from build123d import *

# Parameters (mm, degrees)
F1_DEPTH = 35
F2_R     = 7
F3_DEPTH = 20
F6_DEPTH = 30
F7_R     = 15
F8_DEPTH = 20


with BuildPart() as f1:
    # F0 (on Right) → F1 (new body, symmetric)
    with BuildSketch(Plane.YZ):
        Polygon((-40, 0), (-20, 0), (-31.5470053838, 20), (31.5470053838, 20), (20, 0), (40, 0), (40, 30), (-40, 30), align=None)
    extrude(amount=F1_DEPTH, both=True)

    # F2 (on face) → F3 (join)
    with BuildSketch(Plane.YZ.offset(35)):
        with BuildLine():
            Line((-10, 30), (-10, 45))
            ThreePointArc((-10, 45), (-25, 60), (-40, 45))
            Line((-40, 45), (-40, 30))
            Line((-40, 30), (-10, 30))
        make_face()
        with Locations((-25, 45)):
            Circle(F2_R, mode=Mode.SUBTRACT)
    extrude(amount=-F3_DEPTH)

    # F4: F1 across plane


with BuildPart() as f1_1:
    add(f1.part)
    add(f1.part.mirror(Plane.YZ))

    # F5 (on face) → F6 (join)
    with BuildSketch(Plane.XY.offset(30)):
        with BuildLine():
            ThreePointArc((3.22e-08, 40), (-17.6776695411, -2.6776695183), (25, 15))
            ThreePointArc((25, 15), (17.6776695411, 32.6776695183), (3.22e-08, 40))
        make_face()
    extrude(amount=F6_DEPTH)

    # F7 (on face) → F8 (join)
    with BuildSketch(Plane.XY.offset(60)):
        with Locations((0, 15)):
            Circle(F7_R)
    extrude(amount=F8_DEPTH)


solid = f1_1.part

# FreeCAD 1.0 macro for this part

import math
import FreeCAD as App
import Part
import Sketcher
Q = App.Units.Quantity


def add_polygon(sketch, points):
    """Adds a closed chain of lines whose ends are joined by coincident constraints."""
    first, n = sketch.GeometryCount, len(points)
    for a, b in zip(points, points[1:] + points[:1]):
        sketch.addGeometry(Part.LineSegment(App.Vector(*a, 0), App.Vector(*b, 0)), False)
    for i in range(n):
        sketch.addConstraint(Sketcher.Constraint("Coincident", first + i, 2, first + (i + 1) % n, 1))

doc = App.newDocument("Part")
body = doc.addObject("PartDesign::Body", "Body")

sketch1 = body.newObject("Sketcher::SketchObject", "Sketch")
sketch1.AttachmentSupport = (doc.getObject("YZ_Plane"), [""])
sketch1.MapMode = "FlatFace"
add_polygon(sketch1, [(-40, 0), (-20, 0), (-32, 20), (32, 20), (20, 0), (40, 0), (40, 30), (-40, 30)])
sketch1.addConstraint(Sketcher.Constraint("Horizontal", 0))
sketch1.addConstraint(Sketcher.Constraint("Horizontal", 2))
sketch1.addConstraint(Sketcher.Constraint("Horizontal", 4))
sketch1.addConstraint(Sketcher.Constraint("Vertical", 5))
sketch1.addConstraint(Sketcher.Constraint("Horizontal", 6))
sketch1.addConstraint(Sketcher.Constraint("Vertical", 7))
sketch1.addConstraint(Sketcher.Constraint("Symmetric", 0, 2, 3, 2, -1, 1))
sketch1.addConstraint(Sketcher.Constraint("Symmetric", 4, 2, 7, 2, -2))
sketch1.addConstraint(Sketcher.Constraint("Equal", 1, 3))
sketch1.addConstraint(Sketcher.Constraint("DistanceX", 0, 1, 0, 2, 20.0))
sketch1.addConstraint(Sketcher.Constraint("DistanceX", 6, 2, 6, 1, 80.0))
sketch1.addConstraint(Sketcher.Constraint("DistanceY", 5, 1, 5, 2, 30.0))
sketch1.addConstraint(Sketcher.Constraint("Angle", 1, Q("120 deg")))
sketch1.addConstraint(Sketcher.Constraint("DistanceY", -1, 1, 1, 2, 20.0))
pad1 = body.newObject("PartDesign::Pad", "Pad")
pad1.Profile = sketch1
pad1.Length = 70
pad1.Midplane = True

sketch2 = body.newObject("Sketcher::SketchObject", "Sketch001")
sketch2.AttachmentSupport = (doc.getObject("YZ_Plane"), [""])
sketch2.MapMode = "FlatFace"
sketch2.AttachmentOffset = App.Placement(App.Vector(0, 0, 35), App.Rotation())
sketch2.addGeometry(Part.LineSegment(App.Vector(-10, 30, 0), App.Vector(-10, 45, 0)), False)
sketch2.addGeometry(Part.ArcOfCircle(Part.Circle(App.Vector(-25, 45, 0), App.Vector(0, 0, 1), 15), math.radians(0), math.radians(180)), False)
sketch2.addGeometry(Part.LineSegment(App.Vector(-40, 45, 0), App.Vector(-40, 30, 0)), False)
sketch2.addGeometry(Part.LineSegment(App.Vector(-40, 30, 0), App.Vector(-10, 30, 0)), False)
sketch2.addGeometry(Part.Circle(App.Vector(-25, 45, 0), App.Vector(0, 0, 1), 7), False)
sketch2.addConstraint(Sketcher.Constraint("Tangent", 0, 2, 1, 1))
sketch2.addConstraint(Sketcher.Constraint("Tangent", 1, 2, 2, 1))
sketch2.addConstraint(Sketcher.Constraint("Coincident", 2, 2, 3, 1))
sketch2.addConstraint(Sketcher.Constraint("Coincident", 3, 2, 0, 1))
sketch2.addConstraint(Sketcher.Constraint("Vertical", 0))
sketch2.addConstraint(Sketcher.Constraint("Vertical", 2))
sketch2.addConstraint(Sketcher.Constraint("Horizontal", 3))
sketch2.addConstraint(Sketcher.Constraint("Coincident", 4, 3, 1, 3))
sketch2.addConstraint(Sketcher.Constraint("Diameter", 4, 14.0))
sketch2.addConstraint(Sketcher.Constraint("Radius", 1, 15.0))
sketch2.addConstraint(Sketcher.Constraint("DistanceY", 0, 1, 0, 2, 15.0))
sketch2.addConstraint(Sketcher.Constraint("DistanceX", 1, 3, -1, 1, 25.0))
sketch2.addConstraint(Sketcher.Constraint("DistanceY", -1, 1, 1, 3, 45.0))
pad2 = body.newObject("PartDesign::Pad", "Pad001")
pad2.Profile = sketch2
pad2.Length = 20
pad2.Reversed = True
body2 = doc.addObject("PartDesign::Body", "Body001")
doc.recompute()

body2.BaseFeature = body
doc.recompute()

mirroring = doc.addObject("Part::Mirroring", "Mirroring")
mirroring.Source = body
mirroring.Base = App.Vector(0, 0, 0)
mirroring.Normal = App.Vector(1, 0, 0)
body3 = doc.addObject("PartDesign::Body", "Body002")
body3.BaseFeature = mirroring
boolean = body2.newObject("PartDesign::Boolean", "Boolean")
boolean.Type = "Fuse"
boolean.addObjects([body3])
doc.recompute()

sketch3 = body2.newObject("Sketcher::SketchObject", "Sketch002")
sketch3.AttachmentSupport = (doc.getObject("XY_Plane001"), [""])
sketch3.MapMode = "FlatFace"
sketch3.AttachmentOffset = App.Placement(App.Vector(0, 0, 30), App.Rotation())
sketch3.addGeometry(Part.ArcOfCircle(Part.Circle(App.Vector(0, 15, 0), App.Vector(0, 0, 1), 25), math.radians(90), math.radians(360)), False)
sketch3.addGeometry(Part.ArcOfCircle(Part.Circle(App.Vector(0, 15, 0), App.Vector(0, 0, 1), 25), math.radians(0), math.radians(90)), False)
sketch3.addConstraint(Sketcher.Constraint("Tangent", 0, 1, 1, 2))
sketch3.addConstraint(Sketcher.Constraint("Coincident", 1, 1, 0, 2))
sketch3.addConstraint(Sketcher.Constraint("PointOnObject", 0, 3, -2))
sketch3.addConstraint(Sketcher.Constraint("PointOnObject", 0, 1, -2))
sketch3.addConstraint(Sketcher.Constraint("Horizontal", 0, 3, 1, 1))
sketch3.addConstraint(Sketcher.Constraint("Radius", 0, 25.0))
sketch3.addConstraint(Sketcher.Constraint("DistanceY", -1, 1, 0, 3, 15.0))
pad3 = body2.newObject("PartDesign::Pad", "Pad002")
pad3.Profile = sketch3
pad3.Length = 30

sketch4 = body2.newObject("Sketcher::SketchObject", "Sketch003")
sketch4.AttachmentSupport = (doc.getObject("XY_Plane001"), [""])
sketch4.MapMode = "FlatFace"
sketch4.AttachmentOffset = App.Placement(App.Vector(0, 0, 60), App.Rotation())
sketch4.addGeometry(Part.Circle(App.Vector(0, 15, 0), App.Vector(0, 0, 1), 15), False)
sketch4.addConstraint(Sketcher.Constraint("PointOnObject", 0, 3, -2))
sketch4.addConstraint(Sketcher.Constraint("Diameter", 0, 30.0))
sketch4.addConstraint(Sketcher.Constraint("DistanceY", -1, 1, 0, 3, 15.0))
pad4 = body2.newObject("PartDesign::Pad", "Pad003")
pad4.Profile = sketch4
pad4.Length = 20
mirroring.Visibility = False

doc.recompute()
